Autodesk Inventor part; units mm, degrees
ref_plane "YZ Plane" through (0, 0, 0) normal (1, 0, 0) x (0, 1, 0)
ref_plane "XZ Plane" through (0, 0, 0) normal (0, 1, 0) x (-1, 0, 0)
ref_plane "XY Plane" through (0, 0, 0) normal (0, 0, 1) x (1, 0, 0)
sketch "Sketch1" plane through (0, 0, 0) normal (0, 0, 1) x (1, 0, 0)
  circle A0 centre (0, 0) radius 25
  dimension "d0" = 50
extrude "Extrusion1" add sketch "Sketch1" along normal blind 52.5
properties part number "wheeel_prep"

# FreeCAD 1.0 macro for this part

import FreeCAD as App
import Part
import Sketcher

V = App.Vector

doc = App.newDocument("Part")
body = doc.addObject("PartDesign::Body", "Body")

# Sketch on XY plane
sketch1 = body.newObject("Sketcher::SketchObject", "Sketch")
sketch1.AttachmentSupport = (doc.getObject("XY_Plane"), [""])
sketch1.MapMode = "FlatFace"
sketch1.addGeometry(Part.Circle(V(0, 0, 0), V(0, 0, 1), 25), False)
sketch1.addConstraint(Sketcher.Constraint("Coincident", 0, 3, -1, 1))
sketch1.addConstraint(Sketcher.Constraint("Diameter", 0, 50.0))
pad1 = body.newObject("PartDesign::Pad", "Pad")
pad1.Profile = sketch1
pad1.Length = 52.5

doc.recompute()
